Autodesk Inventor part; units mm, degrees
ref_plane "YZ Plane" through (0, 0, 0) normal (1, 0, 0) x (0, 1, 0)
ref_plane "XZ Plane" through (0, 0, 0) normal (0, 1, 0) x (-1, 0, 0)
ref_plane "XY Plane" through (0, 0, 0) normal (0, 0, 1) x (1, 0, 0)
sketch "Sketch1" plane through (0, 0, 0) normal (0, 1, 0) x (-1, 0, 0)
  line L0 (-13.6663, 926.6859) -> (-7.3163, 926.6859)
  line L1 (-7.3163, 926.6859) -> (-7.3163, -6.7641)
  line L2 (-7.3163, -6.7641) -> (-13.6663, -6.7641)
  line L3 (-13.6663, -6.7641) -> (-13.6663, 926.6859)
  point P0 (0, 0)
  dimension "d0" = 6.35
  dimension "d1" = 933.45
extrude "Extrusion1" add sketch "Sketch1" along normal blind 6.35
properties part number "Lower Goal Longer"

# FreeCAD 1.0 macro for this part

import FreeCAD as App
import Part
import Sketcher
from FreeCAD import Vector
Q = App.Units.Quantity

doc = App.newDocument("Part")
body = doc.addObject("PartDesign::Body", "Body")

sketch1 = doc.addObject("Sketcher::SketchObject", "Sketch")
body.addObject(sketch1)
sketch1.AttachmentSupport = (doc.XZ_Plane, [""])
sketch1.MapMode = "FlatFace"
sketch1.addGeometry(Part.LineSegment(Vector(7.3163, 926.6859, 0), Vector(13.6663, 926.6859, 0)), False)
sketch1.addGeometry(Part.LineSegment(Vector(13.6663, 926.6859, 0), Vector(13.6663, -6.7641, 0)), False)
sketch1.addGeometry(Part.LineSegment(Vector(13.6663, -6.7641, 0), Vector(7.3163, -6.7641, 0)), False)
sketch1.addGeometry(Part.LineSegment(Vector(7.3163, -6.7641, 0), Vector(7.3163, 926.6859, 0)), False)
sketch1.addConstraint(Sketcher.Constraint("Coincident", 0, 2, 1, 1))
sketch1.addConstraint(Sketcher.Constraint("Coincident", 1, 2, 2, 1))
sketch1.addConstraint(Sketcher.Constraint("Coincident", 2, 2, 3, 1))
sketch1.addConstraint(Sketcher.Constraint("Coincident", 3, 2, 0, 1))
sketch1.addConstraint(Sketcher.Constraint("Horizontal", 0))
sketch1.addConstraint(Sketcher.Constraint("Vertical", 1))
sketch1.addConstraint(Sketcher.Constraint("Horizontal", 2))
sketch1.addConstraint(Sketcher.Constraint("Vertical", 3))
sketch1.addConstraint(Sketcher.Constraint("DistanceX", 0, 1, 0, 2, Q("0.25 in")))
sketch1.addConstraint(Sketcher.Constraint("DistanceY", 1, 2, 1, 1, Q("36.75 in")))
sketch1.addConstraint(Sketcher.Constraint("DistanceY", -1, 1, 0, 2, Q("36.4837 in")))
sketch1.addConstraint(Sketcher.Constraint("DistanceX", -1, 1, 0, 2, 13.6663))
pad1 = doc.addObject("PartDesign::Pad", "Pad")
body.addObject(pad1)
pad1.Profile = sketch1
pad1.Length = Q("0.25 in")
pad1.Reversed = True

doc.recompute()
